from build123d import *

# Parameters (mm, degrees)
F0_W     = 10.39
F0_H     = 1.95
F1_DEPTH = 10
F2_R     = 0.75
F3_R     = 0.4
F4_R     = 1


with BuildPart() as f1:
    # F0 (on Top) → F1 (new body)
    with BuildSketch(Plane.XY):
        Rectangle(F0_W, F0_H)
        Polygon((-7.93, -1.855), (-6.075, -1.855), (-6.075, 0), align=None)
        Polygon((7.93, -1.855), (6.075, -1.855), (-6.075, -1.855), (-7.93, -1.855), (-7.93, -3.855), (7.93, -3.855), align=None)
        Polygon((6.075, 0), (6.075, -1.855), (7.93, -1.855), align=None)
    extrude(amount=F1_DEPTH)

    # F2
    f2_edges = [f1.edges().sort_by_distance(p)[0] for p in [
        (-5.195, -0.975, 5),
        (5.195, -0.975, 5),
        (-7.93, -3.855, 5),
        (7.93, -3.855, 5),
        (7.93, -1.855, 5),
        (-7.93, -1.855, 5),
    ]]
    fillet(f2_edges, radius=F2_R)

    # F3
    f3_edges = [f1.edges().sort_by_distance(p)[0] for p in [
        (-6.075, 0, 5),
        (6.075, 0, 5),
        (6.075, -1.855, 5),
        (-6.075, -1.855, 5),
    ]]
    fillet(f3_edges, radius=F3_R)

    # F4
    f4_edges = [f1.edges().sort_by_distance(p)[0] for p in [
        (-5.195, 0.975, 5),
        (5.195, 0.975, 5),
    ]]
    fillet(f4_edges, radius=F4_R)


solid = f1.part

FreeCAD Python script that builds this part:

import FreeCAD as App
import Part
import Sketcher

V = App.Vector
Q = App.Units.Quantity


def edges_at(feature, points):
    """Names of the edges that pass closest to the given points."""
    edges = feature.Shape.Edges
    near = lambda p: min(range(len(edges)), key=lambda i: edges[i].distToShape(Part.Vertex(*p))[0])
    return sorted({f"Edge{near(p) + 1}" for p in points})


def add_polygon(sketch, points):
    """Adds a closed chain of lines whose ends are joined by coincident constraints."""
    first, n = sketch.GeometryCount, len(points)
    for a, b in zip(points, points[1:] + points[:1]):
        sketch.addGeometry(Part.LineSegment(App.Vector(*a, 0), App.Vector(*b, 0)), False)
    for i in range(n):
        sketch.addConstraint(Sketcher.Constraint("Coincident", first + i, 2, first + (i + 1) % n, 1))

doc = App.newDocument("Part")
body = doc.addObject("PartDesign::Body", "Body")
body.AllowCompound = True

sketch1 = body.newObject("Sketcher::SketchObject", "Sketch")
sketch1.AttachmentSupport = (doc.getObject("XY_Plane"), [""])
sketch1.MapMode = "FlatFace"
add_polygon(sketch1, [(-5.2, 1), (-5.2, -1), (5.2, -1), (5.2, 1)])
add_polygon(sketch1, [(-6.1, -1.9), (-6.1, 0), (-7.9, -1.9), (-7.9, -3.9), (7.9, -3.9), (7.9, -1.9), (6.1, 0), (6.1, -1.9)])
sketch1.addConstraint(Sketcher.Constraint("Vertical", 0))
sketch1.addConstraint(Sketcher.Constraint("Horizontal", 1))
sketch1.addConstraint(Sketcher.Constraint("Vertical", 2))
sketch1.addConstraint(Sketcher.Constraint("Horizontal", 3))
sketch1.addConstraint(Sketcher.Constraint("Vertical", 4))
sketch1.addConstraint(Sketcher.Constraint("Vertical", 6))
sketch1.addConstraint(Sketcher.Constraint("Horizontal", 7))
sketch1.addConstraint(Sketcher.Constraint("Vertical", 8))
sketch1.addConstraint(Sketcher.Constraint("Vertical", 10))
sketch1.addConstraint(Sketcher.Constraint("Horizontal", 11))
sketch1.addConstraint(Sketcher.Constraint("Symmetric", 0, 2, 2, 2, -1, 1))
sketch1.addConstraint(Sketcher.Constraint("Symmetric", 4, 2, 9, 2, -1, 1))
sketch1.addConstraint(Sketcher.Constraint("Symmetric", 5, 2, 8, 2, -2))
sketch1.addConstraint(Sketcher.Constraint("PointOnObject", 4, 2, -1))
sketch1.addConstraint(Sketcher.Constraint("Perpendicular", 5, 9))
sketch1.addConstraint(Sketcher.Constraint("Horizontal", 8, 2, 10, 2))
sketch1.addConstraint(Sketcher.Constraint("DistanceY", 6, 2, 6, 1, Q("2 mm")))
sketch1.addConstraint(Sketcher.Constraint("DistanceX", 1, 1, 1, 2, Q("10.39 mm")))
sketch1.addConstraint(Sketcher.Constraint("DistanceX", 7, 1, 7, 2, Q("15.86 mm")))
sketch1.addConstraint(Sketcher.Constraint("DistanceX", 11, 2, 11, 1, Q("12.15 mm")))
sketch1.addConstraint(Sketcher.Constraint("DistanceY", 0, 2, 0, 1, Q("1.95 mm")))
pad1 = body.newObject("PartDesign::Pad", "Pad")
pad1.Profile = sketch1
pad1.Length = 10
doc.recompute()

fillet = body.newObject("PartDesign::Fillet", "Fillet")
fillet.Base = (pad1, edges_at(pad1, [
    (-5.195, -0.975, 5),
    (5.195, -0.975, 5),
    (-7.93, -3.855, 5),
    (7.93, -3.855, 5),
    (7.93, -1.855, 5),
    (-7.93, -1.855, 5),
]))
fillet.Radius = 0.75
doc.recompute()

fillet2 = body.newObject("PartDesign::Fillet", "Fillet001")
fillet2.Base = (fillet, edges_at(fillet, [
    (-6.075, 0, 5),
    (6.075, 0, 5),
    (6.075, -1.855, 5),
    (-6.075, -1.855, 5),
]))
fillet2.Radius = 0.4
doc.recompute()

fillet3 = body.newObject("PartDesign::Fillet", "Fillet002")
fillet3.Base = (fillet2, edges_at(fillet2, [(-5.195, 0.975, 5), (5.195, 0.975, 5)]))
fillet3.Radius = 1

doc.recompute()
